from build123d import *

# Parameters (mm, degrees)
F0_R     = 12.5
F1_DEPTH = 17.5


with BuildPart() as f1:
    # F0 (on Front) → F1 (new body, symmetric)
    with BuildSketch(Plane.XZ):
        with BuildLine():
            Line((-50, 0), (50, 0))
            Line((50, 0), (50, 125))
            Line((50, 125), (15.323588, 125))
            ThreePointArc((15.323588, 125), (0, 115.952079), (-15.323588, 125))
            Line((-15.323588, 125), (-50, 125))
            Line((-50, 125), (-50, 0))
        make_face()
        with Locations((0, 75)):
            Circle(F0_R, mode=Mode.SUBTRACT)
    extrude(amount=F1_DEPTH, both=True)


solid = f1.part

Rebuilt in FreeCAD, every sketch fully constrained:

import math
import FreeCAD as App
import Part
import Sketcher

V = App.Vector
Q = App.Units.Quantity

doc = App.newDocument("Part")
body = doc.addObject("PartDesign::Body", "Body")

sketch1 = doc.addObject("Sketcher::SketchObject", "Sketch")
body.addObject(sketch1)
sketch1.AttachmentSupport = (doc.XZ_Plane, [""])
sketch1.MapMode = "FlatFace"
sketch1.addGeometry(Part.LineSegment(V(-50, 0, 0), V(50, 0, 0)), False)
sketch1.addGeometry(Part.LineSegment(V(50, 0, 0), V(50, 125, 0)), False)
sketch1.addGeometry(Part.LineSegment(V(50, 125, 0), V(15, 125, 0)), False)
sketch1.addGeometry(Part.ArcOfCircle(Part.Circle(V(0, 133, 0), V(0, 0, 1), 17), math.radians(-151), math.radians(-29)), False)
sketch1.addGeometry(Part.LineSegment(V(-15, 125, 0), V(-50, 125, 0)), False)
sketch1.addGeometry(Part.LineSegment(V(-50, 125, 0), V(-50, 0, 0)), False)
sketch1.addGeometry(Part.Circle(V(0, 75, 0), V(0, 0, 1), 12), False)
sketch1.addConstraint(Sketcher.Constraint("Coincident", 0, 2, 1, 1))
sketch1.addConstraint(Sketcher.Constraint("Coincident", 1, 2, 2, 1))
sketch1.addConstraint(Sketcher.Constraint("Coincident", 2, 2, 3, 2))
sketch1.addConstraint(Sketcher.Constraint("Coincident", 3, 1, 4, 1))
sketch1.addConstraint(Sketcher.Constraint("Coincident", 4, 2, 5, 1))
sketch1.addConstraint(Sketcher.Constraint("Coincident", 5, 2, 0, 1))
sketch1.addConstraint(Sketcher.Constraint("Horizontal", 0))
sketch1.addConstraint(Sketcher.Constraint("Vertical", 1))
sketch1.addConstraint(Sketcher.Constraint("Horizontal", 2))
sketch1.addConstraint(Sketcher.Constraint("Horizontal", 4))
sketch1.addConstraint(Sketcher.Constraint("Vertical", 5))
sketch1.addConstraint(Sketcher.Constraint("Symmetric", 0, 2, 5, 2, -1, 1))
sketch1.addConstraint(Sketcher.Constraint("Symmetric", 2, 2, 3, 1, -2))
sketch1.addConstraint(Sketcher.Constraint("PointOnObject", 6, 3, -2))
sketch1.addConstraint(Sketcher.Constraint("Diameter", 6, Q("25 mm")))
sketch1.addConstraint(Sketcher.Constraint("Radius", 3, Q("17.499999 mm")))
sketch1.addConstraint(Sketcher.Constraint("DistanceX", 0, 1, 0, 2, Q("100 mm")))
sketch1.addConstraint(Sketcher.Constraint("DistanceY", 1, 1, 1, 2, Q("125 mm")))
sketch1.addConstraint(Sketcher.Constraint("DistanceY", -1, 1, 6, 3, Q("75 mm")))
sketch1.addConstraint(Sketcher.Constraint("DistanceX", 2, 2, 2, 1, Q("34.676412 mm")))
pad1 = doc.addObject("PartDesign::Pad", "Pad")
body.addObject(pad1)
pad1.Profile = sketch1
pad1.Length = 35
pad1.Midplane = True

doc.recompute()
